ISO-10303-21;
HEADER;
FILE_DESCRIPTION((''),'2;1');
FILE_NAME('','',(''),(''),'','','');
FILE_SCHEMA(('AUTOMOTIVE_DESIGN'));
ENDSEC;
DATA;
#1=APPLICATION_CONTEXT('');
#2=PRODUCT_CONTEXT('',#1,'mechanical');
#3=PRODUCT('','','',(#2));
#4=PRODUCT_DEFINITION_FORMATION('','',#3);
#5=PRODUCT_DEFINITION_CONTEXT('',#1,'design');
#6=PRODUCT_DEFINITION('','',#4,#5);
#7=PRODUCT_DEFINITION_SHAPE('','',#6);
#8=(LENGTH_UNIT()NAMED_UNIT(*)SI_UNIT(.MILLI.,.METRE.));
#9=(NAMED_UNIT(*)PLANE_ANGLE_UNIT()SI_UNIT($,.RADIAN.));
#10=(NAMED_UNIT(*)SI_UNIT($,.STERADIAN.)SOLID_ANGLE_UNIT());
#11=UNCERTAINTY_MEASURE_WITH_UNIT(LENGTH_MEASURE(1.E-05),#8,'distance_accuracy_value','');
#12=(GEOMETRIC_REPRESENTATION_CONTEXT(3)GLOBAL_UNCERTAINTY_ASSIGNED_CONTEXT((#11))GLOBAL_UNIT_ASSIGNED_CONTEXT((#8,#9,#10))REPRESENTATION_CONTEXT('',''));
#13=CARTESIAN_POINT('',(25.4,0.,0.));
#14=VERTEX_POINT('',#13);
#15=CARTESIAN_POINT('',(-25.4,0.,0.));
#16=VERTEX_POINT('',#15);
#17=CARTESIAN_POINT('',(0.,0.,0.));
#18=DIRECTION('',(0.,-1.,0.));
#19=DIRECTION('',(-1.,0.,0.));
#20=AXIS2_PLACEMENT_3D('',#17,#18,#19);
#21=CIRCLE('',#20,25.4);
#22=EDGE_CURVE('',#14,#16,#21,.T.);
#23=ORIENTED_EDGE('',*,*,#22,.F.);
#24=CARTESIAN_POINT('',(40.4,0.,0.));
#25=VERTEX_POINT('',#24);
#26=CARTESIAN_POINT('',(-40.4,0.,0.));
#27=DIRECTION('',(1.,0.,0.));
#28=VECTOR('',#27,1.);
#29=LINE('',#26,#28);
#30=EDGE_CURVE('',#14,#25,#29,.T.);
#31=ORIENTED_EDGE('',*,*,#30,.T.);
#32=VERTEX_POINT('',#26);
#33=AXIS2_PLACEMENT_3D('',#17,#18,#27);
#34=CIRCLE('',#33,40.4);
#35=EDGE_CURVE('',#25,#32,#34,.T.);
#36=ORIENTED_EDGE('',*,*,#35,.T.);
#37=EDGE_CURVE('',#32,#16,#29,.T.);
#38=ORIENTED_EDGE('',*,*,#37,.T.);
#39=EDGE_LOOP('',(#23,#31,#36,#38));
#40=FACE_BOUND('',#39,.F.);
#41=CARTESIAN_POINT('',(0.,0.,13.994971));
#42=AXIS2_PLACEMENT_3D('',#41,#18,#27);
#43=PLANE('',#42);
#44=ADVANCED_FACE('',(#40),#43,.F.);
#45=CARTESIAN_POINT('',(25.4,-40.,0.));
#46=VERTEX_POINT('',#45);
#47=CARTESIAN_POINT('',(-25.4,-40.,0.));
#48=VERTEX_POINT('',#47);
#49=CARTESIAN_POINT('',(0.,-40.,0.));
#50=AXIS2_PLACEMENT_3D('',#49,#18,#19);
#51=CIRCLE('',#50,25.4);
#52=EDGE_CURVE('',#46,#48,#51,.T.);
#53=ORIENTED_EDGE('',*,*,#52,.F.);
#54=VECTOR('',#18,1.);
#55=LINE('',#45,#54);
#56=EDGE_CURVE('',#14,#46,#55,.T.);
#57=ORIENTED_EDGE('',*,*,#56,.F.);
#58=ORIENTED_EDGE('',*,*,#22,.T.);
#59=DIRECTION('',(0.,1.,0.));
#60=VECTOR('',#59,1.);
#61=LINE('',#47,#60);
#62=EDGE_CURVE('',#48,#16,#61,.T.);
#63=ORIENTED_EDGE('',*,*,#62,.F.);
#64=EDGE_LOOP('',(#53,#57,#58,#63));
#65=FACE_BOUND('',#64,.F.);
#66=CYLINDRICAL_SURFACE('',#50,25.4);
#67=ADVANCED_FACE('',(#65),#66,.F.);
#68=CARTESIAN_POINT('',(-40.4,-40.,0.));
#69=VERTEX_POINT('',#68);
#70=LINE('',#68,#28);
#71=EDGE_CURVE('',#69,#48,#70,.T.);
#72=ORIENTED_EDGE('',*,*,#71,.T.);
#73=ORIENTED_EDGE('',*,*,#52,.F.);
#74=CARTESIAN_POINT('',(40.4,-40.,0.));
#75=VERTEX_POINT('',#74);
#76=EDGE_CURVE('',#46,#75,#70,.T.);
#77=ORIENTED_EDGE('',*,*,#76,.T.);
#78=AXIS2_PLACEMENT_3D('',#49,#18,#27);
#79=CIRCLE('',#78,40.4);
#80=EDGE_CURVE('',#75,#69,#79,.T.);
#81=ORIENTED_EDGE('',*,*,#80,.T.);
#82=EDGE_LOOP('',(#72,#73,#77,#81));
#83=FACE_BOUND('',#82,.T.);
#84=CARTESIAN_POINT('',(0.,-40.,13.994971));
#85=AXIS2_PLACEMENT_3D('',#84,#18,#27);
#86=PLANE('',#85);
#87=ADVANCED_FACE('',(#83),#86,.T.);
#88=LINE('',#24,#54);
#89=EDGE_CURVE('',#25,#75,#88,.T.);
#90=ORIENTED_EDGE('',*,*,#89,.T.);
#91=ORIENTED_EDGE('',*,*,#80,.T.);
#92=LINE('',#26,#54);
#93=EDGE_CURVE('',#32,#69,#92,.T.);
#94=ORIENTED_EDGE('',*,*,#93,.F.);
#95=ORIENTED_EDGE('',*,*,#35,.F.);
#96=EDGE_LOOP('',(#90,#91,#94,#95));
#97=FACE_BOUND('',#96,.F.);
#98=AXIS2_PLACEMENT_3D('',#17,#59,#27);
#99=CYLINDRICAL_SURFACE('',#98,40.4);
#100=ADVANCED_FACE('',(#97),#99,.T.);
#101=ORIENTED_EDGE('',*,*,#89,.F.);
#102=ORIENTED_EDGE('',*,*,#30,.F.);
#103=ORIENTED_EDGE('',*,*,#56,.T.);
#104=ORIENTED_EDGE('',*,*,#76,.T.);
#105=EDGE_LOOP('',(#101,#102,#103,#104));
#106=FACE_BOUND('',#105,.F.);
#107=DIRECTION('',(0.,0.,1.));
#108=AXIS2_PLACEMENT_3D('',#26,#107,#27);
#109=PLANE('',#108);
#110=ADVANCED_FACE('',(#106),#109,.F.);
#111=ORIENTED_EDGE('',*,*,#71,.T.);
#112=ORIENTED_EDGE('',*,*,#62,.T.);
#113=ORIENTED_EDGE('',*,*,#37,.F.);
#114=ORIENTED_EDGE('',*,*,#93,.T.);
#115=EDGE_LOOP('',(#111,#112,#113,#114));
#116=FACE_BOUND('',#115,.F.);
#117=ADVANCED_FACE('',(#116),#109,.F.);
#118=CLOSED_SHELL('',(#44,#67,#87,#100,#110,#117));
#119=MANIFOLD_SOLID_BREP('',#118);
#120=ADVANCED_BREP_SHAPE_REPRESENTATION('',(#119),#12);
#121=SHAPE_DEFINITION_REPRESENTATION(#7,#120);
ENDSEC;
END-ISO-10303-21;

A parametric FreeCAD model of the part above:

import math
import FreeCAD as App
import Part
import Sketcher

V = App.Vector

doc = App.newDocument("Part")
body = doc.addObject("PartDesign::Body", "Body")

sketch1 = body.newObject("Sketcher::SketchObject", "Sketch")
sketch1.AttachmentSupport = (doc.getObject("XZ_Plane"), [""])
sketch1.MapMode = "FlatFace"
sketch1.addGeometry(Part.LineSegment(V(-40.4, 0, 0), V(40.4, 0, 0)), False)
sketch1.addGeometry(Part.ArcOfCircle(Part.Circle(V(0, 0, 0), V(0, 0, 1), 40.4), math.radians(0), math.radians(180)), False)
sketch1.addConstraint(Sketcher.Constraint("Coincident", 0, 1, 1, 2))
sketch1.addConstraint(Sketcher.Constraint("Coincident", 1, 1, 0, 2))
sketch1.addConstraint(Sketcher.Constraint("Horizontal", 0))
sketch1.addConstraint(Sketcher.Constraint("Coincident", 1, 3, -1, 1))
sketch1.addConstraint(Sketcher.Constraint("PointOnObject", 0, 1, -1))
sketch1.addConstraint(Sketcher.Constraint("Radius", 1, 40.4))
pad1 = body.newObject("PartDesign::Pad", "Pad")
pad1.Profile = sketch1
pad1.Length = 40

sketch2 = body.newObject("Sketcher::SketchObject", "Sketch001")
sketch2.AttachmentSupport = (doc.getObject("XZ_Plane"), [""])
sketch2.MapMode = "FlatFace"
sketch2.AttachmentOffset = App.Placement(V(0, 0, 40), App.Rotation())
sketch2.addGeometry(Part.Circle(V(0, 0, 0), V(0, 0, 1), 25.4), False)
sketch2.addConstraint(Sketcher.Constraint("Coincident", 0, 3, -1, 1))
sketch2.addConstraint(Sketcher.Constraint("Diameter", 0, 50.8))
pocket1 = body.newObject("PartDesign::Pocket", "Pocket")
pocket1.Profile = sketch2
pocket1.Length = 40

doc.recompute()
